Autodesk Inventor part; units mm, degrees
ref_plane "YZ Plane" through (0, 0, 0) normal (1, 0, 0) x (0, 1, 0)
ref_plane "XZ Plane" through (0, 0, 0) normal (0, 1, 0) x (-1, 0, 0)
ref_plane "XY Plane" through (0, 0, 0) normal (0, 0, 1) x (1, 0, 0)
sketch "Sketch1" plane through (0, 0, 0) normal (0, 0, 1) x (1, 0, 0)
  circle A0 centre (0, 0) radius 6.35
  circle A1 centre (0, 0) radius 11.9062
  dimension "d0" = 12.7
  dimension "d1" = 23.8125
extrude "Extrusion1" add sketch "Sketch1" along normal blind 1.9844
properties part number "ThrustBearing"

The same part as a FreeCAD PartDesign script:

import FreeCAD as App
import Part
import Sketcher
Q = App.Units.Quantity

doc = App.newDocument("Part")
body = doc.addObject("PartDesign::Body", "Body")

# Sketch on XY plane
sketch1 = doc.addObject("Sketcher::SketchObject", "Sketch")
body.addObject(sketch1)
sketch1.AttachmentSupport = (doc.XY_Plane, [""])
sketch1.MapMode = "FlatFace"
sketch1.addGeometry(Part.Circle(App.Vector(0, 0, 0), App.Vector(0, 0, 1), 12), False)
sketch1.addGeometry(Part.Circle(App.Vector(0, 0, 0), App.Vector(0, 0, 1), 6), False)
sketch1.addConstraint(Sketcher.Constraint("Coincident", 0, 3, -1, 1))
sketch1.addConstraint(Sketcher.Constraint("Coincident", 1, 3, -1, 1))
sketch1.addConstraint(Sketcher.Constraint("Diameter", 1, Q("0.5 in")))
sketch1.addConstraint(Sketcher.Constraint("Diameter", 0, Q("0.9375 in")))
pad1 = doc.addObject("PartDesign::Pad", "Pad")
body.addObject(pad1)
pad1.Profile = sketch1
pad1.Length = Q("0.078126 in")

doc.recompute()
